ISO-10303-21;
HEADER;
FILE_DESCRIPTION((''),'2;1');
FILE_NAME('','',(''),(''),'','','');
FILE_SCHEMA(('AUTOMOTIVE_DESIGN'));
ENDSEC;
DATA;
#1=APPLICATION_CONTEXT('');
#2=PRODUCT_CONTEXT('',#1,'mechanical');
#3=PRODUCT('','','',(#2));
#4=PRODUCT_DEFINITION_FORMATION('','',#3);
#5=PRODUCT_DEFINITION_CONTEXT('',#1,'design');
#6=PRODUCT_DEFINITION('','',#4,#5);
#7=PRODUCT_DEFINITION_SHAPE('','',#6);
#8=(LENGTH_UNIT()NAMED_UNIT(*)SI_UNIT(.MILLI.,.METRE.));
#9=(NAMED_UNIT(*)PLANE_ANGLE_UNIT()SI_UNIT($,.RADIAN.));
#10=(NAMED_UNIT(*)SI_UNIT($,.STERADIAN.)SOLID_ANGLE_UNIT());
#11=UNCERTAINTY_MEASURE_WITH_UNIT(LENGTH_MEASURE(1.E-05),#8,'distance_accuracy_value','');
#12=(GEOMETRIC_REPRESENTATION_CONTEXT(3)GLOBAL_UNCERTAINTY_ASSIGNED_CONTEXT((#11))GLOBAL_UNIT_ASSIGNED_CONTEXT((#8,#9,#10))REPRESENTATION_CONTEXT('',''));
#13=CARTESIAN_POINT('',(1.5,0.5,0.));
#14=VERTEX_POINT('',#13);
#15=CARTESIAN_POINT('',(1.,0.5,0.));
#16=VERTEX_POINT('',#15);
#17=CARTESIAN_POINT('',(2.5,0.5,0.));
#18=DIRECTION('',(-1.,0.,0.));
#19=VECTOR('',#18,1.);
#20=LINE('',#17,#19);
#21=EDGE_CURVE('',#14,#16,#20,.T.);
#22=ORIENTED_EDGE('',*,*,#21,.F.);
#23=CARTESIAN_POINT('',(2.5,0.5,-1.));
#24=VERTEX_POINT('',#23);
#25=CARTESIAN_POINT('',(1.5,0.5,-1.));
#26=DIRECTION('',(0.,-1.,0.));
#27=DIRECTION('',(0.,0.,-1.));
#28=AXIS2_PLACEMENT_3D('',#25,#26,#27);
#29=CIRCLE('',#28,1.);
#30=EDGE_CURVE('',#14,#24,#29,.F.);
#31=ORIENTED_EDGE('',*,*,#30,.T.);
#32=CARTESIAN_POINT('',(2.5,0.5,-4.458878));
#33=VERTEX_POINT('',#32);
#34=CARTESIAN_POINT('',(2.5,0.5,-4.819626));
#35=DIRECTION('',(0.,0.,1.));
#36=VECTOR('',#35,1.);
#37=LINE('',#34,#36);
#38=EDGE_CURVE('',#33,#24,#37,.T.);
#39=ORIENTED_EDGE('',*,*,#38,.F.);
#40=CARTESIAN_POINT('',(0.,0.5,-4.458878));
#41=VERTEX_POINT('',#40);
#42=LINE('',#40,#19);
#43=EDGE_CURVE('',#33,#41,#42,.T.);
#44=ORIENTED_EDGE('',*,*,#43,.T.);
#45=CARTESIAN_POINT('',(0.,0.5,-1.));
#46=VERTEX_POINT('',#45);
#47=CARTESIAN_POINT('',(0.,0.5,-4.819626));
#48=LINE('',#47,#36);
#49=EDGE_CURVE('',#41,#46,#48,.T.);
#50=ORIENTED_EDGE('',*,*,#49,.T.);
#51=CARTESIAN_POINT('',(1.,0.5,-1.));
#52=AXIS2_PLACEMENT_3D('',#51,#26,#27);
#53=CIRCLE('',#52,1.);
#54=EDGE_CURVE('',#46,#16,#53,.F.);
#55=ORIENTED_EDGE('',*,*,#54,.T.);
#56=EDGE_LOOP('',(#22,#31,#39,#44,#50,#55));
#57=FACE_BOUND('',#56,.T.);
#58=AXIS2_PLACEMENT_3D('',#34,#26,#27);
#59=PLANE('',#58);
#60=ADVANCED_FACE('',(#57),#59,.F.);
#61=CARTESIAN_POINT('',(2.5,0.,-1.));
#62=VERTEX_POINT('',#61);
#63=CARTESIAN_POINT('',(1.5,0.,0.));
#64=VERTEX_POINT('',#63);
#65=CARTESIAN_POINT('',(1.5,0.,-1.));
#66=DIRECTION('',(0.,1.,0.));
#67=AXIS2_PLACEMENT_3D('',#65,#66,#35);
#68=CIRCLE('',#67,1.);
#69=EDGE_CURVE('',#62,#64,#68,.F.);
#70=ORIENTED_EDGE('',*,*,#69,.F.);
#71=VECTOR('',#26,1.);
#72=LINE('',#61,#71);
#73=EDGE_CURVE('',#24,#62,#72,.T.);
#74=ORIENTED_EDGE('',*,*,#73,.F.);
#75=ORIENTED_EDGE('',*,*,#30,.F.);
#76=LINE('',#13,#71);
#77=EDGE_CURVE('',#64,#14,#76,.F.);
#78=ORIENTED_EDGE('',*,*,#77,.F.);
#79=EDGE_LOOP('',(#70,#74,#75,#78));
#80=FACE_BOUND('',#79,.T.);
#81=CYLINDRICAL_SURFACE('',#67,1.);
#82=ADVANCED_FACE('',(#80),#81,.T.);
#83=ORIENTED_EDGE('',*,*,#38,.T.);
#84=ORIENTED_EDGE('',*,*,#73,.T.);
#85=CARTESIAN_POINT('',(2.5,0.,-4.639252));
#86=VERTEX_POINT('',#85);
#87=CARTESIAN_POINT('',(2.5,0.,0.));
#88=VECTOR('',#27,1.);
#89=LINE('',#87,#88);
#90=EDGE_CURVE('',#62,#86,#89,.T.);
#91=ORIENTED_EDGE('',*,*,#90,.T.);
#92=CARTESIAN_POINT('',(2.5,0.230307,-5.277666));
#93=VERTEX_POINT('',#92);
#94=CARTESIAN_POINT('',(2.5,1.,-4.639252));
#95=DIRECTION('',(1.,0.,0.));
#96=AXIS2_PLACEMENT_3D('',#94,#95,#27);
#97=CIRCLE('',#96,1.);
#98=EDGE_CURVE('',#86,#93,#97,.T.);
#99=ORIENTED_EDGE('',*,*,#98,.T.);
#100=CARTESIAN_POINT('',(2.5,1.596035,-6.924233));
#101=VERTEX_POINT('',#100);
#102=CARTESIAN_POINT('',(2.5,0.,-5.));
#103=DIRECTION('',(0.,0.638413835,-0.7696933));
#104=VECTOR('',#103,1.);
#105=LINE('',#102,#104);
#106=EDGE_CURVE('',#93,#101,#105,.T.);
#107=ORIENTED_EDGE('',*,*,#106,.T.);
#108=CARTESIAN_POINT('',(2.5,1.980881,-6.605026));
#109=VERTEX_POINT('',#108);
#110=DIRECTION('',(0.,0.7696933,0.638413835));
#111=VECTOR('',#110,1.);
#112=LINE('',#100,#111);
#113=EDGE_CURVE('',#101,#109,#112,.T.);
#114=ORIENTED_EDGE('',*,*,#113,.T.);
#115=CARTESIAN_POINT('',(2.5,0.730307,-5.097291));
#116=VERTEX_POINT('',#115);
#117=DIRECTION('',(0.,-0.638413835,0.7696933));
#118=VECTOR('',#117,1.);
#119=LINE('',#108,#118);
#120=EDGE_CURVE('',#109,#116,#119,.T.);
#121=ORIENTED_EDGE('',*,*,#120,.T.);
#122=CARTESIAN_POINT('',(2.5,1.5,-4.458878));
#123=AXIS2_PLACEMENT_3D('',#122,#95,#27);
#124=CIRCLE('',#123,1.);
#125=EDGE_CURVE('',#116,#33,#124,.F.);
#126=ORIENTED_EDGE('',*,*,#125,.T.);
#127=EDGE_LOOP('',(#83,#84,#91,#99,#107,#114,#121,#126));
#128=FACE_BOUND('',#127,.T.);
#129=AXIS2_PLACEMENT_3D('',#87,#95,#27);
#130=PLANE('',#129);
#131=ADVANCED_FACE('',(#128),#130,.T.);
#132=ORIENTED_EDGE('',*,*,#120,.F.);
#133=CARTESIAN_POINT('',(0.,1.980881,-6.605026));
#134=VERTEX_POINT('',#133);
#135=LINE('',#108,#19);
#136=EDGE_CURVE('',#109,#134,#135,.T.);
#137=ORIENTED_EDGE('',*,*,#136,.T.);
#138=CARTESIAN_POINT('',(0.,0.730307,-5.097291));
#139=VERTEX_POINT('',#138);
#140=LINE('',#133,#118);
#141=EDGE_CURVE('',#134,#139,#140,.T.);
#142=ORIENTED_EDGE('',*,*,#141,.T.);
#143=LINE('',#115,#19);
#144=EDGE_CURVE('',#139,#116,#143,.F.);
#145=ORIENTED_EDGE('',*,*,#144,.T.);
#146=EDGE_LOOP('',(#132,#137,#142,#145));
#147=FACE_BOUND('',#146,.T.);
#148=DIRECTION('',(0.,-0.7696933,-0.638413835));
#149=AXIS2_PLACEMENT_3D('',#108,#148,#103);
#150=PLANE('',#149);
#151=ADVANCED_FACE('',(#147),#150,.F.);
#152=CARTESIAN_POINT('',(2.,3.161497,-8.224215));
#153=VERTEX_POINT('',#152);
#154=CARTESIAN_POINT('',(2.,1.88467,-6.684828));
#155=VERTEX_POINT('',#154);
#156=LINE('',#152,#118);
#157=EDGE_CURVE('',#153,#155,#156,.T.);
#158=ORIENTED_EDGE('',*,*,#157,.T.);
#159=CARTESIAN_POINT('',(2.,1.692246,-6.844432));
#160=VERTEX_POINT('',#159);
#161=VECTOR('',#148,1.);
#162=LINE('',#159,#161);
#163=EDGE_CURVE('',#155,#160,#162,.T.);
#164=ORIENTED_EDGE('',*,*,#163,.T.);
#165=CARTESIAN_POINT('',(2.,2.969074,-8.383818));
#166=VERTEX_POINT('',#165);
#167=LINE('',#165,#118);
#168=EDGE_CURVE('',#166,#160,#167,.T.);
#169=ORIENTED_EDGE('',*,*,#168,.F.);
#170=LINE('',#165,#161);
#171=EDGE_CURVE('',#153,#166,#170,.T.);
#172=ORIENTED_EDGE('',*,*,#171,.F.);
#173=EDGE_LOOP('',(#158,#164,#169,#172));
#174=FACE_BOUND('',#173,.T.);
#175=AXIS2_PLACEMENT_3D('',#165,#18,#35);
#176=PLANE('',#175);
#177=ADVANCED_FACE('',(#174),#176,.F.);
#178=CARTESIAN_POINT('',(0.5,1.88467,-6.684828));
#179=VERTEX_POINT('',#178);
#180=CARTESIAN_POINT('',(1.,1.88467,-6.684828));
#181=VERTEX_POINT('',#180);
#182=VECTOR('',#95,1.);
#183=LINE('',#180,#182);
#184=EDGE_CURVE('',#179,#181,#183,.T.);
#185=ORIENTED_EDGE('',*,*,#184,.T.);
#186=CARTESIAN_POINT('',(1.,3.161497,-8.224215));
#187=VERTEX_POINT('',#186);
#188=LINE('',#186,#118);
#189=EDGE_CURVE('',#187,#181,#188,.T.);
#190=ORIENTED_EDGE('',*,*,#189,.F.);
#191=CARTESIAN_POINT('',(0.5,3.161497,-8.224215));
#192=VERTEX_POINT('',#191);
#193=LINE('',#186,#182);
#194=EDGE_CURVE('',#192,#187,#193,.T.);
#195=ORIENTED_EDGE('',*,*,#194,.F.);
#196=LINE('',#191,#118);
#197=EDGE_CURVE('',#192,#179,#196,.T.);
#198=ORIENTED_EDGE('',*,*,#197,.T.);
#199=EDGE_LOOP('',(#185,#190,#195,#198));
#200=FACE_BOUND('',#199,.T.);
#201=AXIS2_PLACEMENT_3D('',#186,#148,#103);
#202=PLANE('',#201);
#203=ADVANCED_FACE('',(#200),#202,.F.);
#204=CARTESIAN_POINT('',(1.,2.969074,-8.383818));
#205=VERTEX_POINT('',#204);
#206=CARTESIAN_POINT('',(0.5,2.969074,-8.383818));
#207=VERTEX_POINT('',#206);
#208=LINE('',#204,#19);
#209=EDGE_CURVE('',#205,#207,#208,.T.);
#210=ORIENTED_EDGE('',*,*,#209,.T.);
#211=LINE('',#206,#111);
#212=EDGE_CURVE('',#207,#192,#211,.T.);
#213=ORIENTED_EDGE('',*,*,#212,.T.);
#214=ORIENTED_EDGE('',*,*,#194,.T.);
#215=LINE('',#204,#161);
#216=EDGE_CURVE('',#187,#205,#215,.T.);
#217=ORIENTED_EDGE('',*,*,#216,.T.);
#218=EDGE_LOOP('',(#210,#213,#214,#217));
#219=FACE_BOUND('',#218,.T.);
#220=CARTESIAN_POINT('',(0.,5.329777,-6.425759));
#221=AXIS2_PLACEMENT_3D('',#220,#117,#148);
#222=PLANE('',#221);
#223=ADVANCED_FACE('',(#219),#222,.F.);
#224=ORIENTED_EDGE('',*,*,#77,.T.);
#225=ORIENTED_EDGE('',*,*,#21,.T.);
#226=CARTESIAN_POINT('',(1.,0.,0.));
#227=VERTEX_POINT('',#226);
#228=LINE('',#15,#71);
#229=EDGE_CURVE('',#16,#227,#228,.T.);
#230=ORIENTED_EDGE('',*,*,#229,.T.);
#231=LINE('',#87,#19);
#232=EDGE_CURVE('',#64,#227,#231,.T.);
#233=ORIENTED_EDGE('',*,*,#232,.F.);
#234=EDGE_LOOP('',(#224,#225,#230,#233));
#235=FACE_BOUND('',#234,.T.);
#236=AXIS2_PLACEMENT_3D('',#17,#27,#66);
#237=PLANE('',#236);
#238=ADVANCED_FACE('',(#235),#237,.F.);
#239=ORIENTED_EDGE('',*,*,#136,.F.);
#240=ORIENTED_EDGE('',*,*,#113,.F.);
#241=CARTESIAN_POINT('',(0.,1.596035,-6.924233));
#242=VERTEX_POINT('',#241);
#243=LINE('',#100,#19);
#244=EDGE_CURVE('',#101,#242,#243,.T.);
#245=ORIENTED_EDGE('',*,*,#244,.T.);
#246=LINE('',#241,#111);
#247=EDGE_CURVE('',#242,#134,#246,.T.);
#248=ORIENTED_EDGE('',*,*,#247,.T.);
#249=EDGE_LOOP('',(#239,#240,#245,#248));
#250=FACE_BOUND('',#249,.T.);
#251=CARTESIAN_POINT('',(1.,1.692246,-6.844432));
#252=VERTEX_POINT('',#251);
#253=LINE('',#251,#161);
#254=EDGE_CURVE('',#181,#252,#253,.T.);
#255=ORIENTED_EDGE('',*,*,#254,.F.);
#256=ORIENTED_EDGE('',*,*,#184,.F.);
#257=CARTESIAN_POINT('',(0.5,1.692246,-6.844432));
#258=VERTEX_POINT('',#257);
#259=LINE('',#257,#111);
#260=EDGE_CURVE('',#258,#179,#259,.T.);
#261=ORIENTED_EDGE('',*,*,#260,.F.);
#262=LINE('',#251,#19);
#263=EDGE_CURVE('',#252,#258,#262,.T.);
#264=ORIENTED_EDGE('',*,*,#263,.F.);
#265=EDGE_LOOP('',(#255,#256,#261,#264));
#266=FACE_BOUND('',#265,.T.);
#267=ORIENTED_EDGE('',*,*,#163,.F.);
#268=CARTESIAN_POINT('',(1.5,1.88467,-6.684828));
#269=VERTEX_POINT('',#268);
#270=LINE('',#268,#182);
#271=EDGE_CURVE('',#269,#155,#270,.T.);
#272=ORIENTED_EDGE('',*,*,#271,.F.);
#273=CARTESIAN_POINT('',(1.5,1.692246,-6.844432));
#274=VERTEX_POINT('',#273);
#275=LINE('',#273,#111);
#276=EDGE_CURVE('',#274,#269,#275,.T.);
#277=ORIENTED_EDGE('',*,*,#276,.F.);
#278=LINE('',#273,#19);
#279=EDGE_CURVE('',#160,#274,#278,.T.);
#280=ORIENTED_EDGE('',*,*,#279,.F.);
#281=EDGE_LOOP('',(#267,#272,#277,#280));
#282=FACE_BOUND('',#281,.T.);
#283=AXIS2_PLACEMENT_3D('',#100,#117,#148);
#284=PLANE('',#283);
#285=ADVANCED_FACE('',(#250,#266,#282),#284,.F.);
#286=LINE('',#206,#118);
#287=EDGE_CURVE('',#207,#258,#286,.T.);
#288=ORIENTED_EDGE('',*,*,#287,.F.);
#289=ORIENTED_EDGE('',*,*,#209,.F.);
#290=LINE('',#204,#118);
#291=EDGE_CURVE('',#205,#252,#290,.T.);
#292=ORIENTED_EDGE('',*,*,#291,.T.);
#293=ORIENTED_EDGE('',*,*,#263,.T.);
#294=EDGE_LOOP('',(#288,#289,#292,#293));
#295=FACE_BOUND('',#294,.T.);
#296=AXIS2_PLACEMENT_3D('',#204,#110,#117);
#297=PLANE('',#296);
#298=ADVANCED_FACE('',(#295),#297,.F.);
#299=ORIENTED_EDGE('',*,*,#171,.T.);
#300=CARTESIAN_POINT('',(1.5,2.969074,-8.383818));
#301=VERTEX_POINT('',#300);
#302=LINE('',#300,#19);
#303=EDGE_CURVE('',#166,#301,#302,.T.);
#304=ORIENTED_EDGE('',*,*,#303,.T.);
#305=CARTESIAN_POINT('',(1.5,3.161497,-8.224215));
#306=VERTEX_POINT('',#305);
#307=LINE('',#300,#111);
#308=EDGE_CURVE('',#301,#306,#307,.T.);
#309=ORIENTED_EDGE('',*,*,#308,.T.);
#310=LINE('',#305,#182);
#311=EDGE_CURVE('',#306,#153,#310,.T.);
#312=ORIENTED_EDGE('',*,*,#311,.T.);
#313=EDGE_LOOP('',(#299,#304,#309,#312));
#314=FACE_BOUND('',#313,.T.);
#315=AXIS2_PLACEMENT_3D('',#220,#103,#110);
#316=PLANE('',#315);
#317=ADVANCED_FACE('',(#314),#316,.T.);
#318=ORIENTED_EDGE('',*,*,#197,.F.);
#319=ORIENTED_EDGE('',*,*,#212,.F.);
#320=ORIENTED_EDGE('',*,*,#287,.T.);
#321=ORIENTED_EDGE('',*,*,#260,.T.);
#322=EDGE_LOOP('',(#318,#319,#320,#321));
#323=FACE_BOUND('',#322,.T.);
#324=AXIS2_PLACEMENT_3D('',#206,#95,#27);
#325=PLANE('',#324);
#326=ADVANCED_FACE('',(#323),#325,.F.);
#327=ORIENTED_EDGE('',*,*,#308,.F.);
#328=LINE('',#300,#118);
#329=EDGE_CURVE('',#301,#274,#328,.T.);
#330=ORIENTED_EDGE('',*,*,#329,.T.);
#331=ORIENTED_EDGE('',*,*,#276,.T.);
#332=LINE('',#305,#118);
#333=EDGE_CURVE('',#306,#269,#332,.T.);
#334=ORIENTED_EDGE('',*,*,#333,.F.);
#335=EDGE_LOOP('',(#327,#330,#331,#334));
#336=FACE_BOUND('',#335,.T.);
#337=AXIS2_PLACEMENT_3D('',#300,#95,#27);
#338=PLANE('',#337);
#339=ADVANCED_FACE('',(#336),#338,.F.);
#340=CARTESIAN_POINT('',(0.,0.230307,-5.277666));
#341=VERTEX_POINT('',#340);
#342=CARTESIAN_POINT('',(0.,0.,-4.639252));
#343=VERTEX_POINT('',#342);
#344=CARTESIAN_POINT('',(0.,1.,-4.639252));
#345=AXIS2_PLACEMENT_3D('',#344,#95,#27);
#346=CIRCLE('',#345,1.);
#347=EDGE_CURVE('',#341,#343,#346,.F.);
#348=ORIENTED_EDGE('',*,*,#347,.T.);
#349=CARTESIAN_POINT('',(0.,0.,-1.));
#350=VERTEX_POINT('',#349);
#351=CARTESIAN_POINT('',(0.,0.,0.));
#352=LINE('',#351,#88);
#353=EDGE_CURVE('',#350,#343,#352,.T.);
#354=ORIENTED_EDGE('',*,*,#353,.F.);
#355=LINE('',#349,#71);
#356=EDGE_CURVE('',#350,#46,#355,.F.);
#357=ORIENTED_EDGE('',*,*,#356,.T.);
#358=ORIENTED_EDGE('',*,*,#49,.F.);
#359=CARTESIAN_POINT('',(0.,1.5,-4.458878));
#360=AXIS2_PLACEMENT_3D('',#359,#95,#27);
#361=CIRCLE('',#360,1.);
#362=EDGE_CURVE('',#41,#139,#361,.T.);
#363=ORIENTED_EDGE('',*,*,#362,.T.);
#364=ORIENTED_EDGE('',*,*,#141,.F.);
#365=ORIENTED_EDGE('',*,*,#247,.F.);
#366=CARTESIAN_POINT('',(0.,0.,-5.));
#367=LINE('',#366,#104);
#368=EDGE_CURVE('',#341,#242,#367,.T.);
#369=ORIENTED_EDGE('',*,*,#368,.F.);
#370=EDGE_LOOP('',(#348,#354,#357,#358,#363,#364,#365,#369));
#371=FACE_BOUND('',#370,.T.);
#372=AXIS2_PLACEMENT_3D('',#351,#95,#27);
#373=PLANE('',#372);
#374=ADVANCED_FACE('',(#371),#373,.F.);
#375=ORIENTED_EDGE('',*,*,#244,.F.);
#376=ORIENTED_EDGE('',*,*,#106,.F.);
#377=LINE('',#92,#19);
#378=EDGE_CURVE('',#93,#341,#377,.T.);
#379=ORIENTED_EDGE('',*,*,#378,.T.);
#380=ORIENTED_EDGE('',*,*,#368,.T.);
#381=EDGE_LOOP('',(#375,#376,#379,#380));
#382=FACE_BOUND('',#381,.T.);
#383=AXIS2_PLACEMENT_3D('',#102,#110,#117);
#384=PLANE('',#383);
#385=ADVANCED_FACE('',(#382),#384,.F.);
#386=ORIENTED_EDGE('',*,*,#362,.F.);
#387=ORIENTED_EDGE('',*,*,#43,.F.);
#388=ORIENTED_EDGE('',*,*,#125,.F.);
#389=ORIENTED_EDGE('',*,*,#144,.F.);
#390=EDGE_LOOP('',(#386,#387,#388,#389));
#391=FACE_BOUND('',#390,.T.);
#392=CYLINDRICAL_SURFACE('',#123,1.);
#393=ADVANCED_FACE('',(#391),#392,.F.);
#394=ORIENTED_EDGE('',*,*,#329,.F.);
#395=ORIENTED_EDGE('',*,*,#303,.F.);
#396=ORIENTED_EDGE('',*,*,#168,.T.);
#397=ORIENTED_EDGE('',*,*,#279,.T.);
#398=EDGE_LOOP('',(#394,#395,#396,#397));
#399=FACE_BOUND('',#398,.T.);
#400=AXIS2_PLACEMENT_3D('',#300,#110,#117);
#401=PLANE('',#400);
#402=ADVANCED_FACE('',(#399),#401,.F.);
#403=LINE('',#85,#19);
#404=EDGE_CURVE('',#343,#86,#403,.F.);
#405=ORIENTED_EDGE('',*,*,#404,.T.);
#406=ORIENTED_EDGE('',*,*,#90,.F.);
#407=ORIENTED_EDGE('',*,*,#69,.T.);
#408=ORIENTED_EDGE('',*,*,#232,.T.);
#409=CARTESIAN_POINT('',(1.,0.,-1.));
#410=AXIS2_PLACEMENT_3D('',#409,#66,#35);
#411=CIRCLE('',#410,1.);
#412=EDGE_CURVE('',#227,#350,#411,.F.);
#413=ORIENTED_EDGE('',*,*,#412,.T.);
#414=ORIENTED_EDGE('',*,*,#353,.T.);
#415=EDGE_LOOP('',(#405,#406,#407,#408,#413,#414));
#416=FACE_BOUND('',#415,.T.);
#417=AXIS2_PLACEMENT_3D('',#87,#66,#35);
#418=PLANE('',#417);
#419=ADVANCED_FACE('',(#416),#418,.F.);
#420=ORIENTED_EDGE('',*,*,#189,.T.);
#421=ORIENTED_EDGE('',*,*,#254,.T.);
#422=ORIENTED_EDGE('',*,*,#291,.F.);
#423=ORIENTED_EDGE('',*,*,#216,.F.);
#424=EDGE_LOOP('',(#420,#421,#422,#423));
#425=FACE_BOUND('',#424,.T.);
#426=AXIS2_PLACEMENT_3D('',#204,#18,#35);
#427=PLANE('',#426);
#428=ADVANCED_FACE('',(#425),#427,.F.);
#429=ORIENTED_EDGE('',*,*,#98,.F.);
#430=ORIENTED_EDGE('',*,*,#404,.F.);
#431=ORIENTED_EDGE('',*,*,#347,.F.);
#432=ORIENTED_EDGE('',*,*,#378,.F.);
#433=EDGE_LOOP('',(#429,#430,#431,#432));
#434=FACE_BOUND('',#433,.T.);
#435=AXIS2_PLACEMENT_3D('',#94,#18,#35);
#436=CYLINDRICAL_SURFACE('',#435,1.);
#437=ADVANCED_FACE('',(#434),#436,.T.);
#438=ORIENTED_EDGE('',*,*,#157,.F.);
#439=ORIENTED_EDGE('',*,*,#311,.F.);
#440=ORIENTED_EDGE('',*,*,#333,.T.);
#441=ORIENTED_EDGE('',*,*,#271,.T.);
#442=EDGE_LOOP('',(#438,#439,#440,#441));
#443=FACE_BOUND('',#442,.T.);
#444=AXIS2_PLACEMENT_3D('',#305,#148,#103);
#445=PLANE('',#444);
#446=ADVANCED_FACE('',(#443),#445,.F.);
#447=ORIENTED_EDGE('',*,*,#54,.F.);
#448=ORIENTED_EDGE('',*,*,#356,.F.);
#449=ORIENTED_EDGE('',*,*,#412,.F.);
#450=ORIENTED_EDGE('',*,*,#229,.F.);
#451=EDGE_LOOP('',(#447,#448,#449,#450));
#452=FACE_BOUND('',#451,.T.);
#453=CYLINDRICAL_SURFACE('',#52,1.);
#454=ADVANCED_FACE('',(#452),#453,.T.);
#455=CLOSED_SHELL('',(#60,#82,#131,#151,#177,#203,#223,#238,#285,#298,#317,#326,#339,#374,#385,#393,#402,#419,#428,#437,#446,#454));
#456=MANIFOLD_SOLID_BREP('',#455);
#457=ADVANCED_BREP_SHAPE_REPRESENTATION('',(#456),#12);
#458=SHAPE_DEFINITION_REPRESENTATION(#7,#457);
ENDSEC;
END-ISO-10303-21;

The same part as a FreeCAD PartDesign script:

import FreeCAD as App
import Part
import Sketcher
Q = App.Units.Quantity


def edges_at(feature, points):
    """Names of the edges that pass closest to the given points."""
    edges = feature.Shape.Edges
    near = lambda p: min(range(len(edges)), key=lambda i: edges[i].distToShape(Part.Vertex(*p))[0])
    return sorted({f"Edge{near(p) + 1}" for p in points})

doc = App.newDocument("Part")
params = doc.addObject("Spreadsheet::Sheet", "Params")
for row, (alias, value) in enumerate([
    ("sketch1_height", "5 mm"),
    ("sketch1_width", "0.5 mm"),
    ("sketch1_length", "2.5 mm"),
    ("sketch1_length2", "0.5 mm"),
    ("pad1_length", "2.5 mm"),
    ("fillet_radius", "1 mm"),
    ("fillet2_radius", "1 mm"),
    ("sketch2_width", "0.5 mm"),
    ("sketch2_height", "0.25 mm"),
    ("pad2_length", "2 mm"),
], start=1):
    params.set(f"A{row}", alias)
    params.set(f"B{row}", "=" + value)
    params.setAlias(f"B{row}", alias)

body = doc.addObject("PartDesign::Body", "Body")

sketch1 = doc.addObject("Sketcher::SketchObject", "Sketch")
body.addObject(sketch1)
sketch1.AttachmentSupport = (doc.YZ_Plane, [""])
sketch1.MapMode = "FlatFace"
sketch1.addGeometry([
    Part.LineSegment(App.Vector(0, 0, 0), App.Vector(0, -5, 0)),
    Part.LineSegment(App.Vector(0, -5, 0), App.Vector(1.6, -6.9, 0)),
    Part.LineSegment(App.Vector(1.6, -6.9, 0), App.Vector(2, -6.6, 0)),
    Part.LineSegment(App.Vector(2, -6.6, 0), App.Vector(0.5, -4.8, 0)),
    Part.LineSegment(App.Vector(0.5, -4.8, 0), App.Vector(0.5, 0, 0)),
    Part.LineSegment(App.Vector(0.5, 0, 0), App.Vector(0, 0, 0)),
], False)
sketch1.addConstraint([
    Sketcher.Constraint("Coincident", 0, 2, 1, 1),
    Sketcher.Constraint("Coincident", 1, 2, 2, 1),
    Sketcher.Constraint("Coincident", 2, 2, 3, 1),
    Sketcher.Constraint("Coincident", 3, 2, 4, 1),
    Sketcher.Constraint("Coincident", 4, 2, 5, 1),
    Sketcher.Constraint("Coincident", 5, 2, 0, 1),
    Sketcher.Constraint("Vertical", 0),
    Sketcher.Constraint("Vertical", 4),
    Sketcher.Constraint("Horizontal", 5),
    Sketcher.Constraint("Coincident", 5, 2, -1, 1),
    Sketcher.Constraint("Perpendicular", 1, 2),
    Sketcher.Constraint("Perpendicular", 2, 3),
    Sketcher.Constraint("DistanceY", 0, 2, 0, 1, Q("5 mm")),
    Sketcher.Constraint("DistanceX", 5, 2, 5, 1, Q("0.5 mm")),
    Sketcher.Constraint("Distance", 1, Q("2.5 mm")),
    Sketcher.Constraint("Distance", 2, Q("0.5 mm")),
    Sketcher.Constraint("DistanceY", 2, 2, 3, 2, Q("1.7854 mm")),
])
sketch1.setExpression("Constraints[12]", "Params.sketch1_height")
sketch1.setExpression("Constraints[13]", "Params.sketch1_width")
sketch1.setExpression("Constraints[14]", "Params.sketch1_length")
sketch1.setExpression("Constraints[15]", "Params.sketch1_length2")
pad1 = doc.addObject("PartDesign::Pad", "Pad")
body.addObject(pad1)
pad1.Profile = sketch1
pad1.setExpression("Length", "Params.pad1_length")
doc.recompute()

fillet = doc.addObject("PartDesign::Fillet", "Fillet")
body.addObject(fillet)
fillet.Base = (pad1, edges_at(pad1, [(2.5, 0.25, 0), (0, 0.25, 0)]))
fillet.setExpression("Radius", "Params.fillet_radius")
doc.recompute()

fillet2 = doc.addObject("PartDesign::Fillet", "Fillet001")
body.addObject(fillet2)
fillet2.Base = (fillet, edges_at(fillet, [(1.25, 0.5, -4.82), (1.25, 0, -5)]))
fillet2.setExpression("Radius", "Params.fillet2_radius")

sketch2 = doc.addObject("Sketcher::SketchObject", "Sketch001")
body.addObject(sketch2)
sketch2.Placement = App.Placement(App.Vector(0, 4.052949, -4.886372), App.Rotation(App.Vector(-1, 0, 0), App.Vector(0, 0.7696933, 0.638413835), App.Vector(0, 0.638413835, -0.7696933), "ZXY"))
sketch2.addGeometry([
    Part.LineSegment(App.Vector(-2, -2.82, 0), App.Vector(-2, -3.07, 0)),
    Part.LineSegment(App.Vector(-2, -3.07, 0), App.Vector(-1.5, -3.07, 0)),
    Part.LineSegment(App.Vector(-1.5, -3.07, 0), App.Vector(-1.5, -2.82, 0)),
    Part.LineSegment(App.Vector(-1.5, -2.82, 0), App.Vector(-2, -2.82, 0)),
    Part.LineSegment(App.Vector(-1, -2.82, 0), App.Vector(-1, -3.07, 0)),
    Part.LineSegment(App.Vector(-1, -3.07, 0), App.Vector(-0.5, -3.07, 0)),
    Part.LineSegment(App.Vector(-0.5, -3.07, 0), App.Vector(-0.5, -2.82, 0)),
    Part.LineSegment(App.Vector(-0.5, -2.82, 0), App.Vector(-1, -2.82, 0)),
], False)
sketch2.addConstraint([
    Sketcher.Constraint("Coincident", 0, 2, 1, 1),
    Sketcher.Constraint("Coincident", 1, 2, 2, 1),
    Sketcher.Constraint("Coincident", 2, 2, 3, 1),
    Sketcher.Constraint("Coincident", 3, 2, 0, 1),
    Sketcher.Constraint("Coincident", 4, 2, 5, 1),
    Sketcher.Constraint("Coincident", 5, 2, 6, 1),
    Sketcher.Constraint("Coincident", 6, 2, 7, 1),
    Sketcher.Constraint("Coincident", 7, 2, 4, 1),
    Sketcher.Constraint("Vertical", 0),
    Sketcher.Constraint("Horizontal", 1),
    Sketcher.Constraint("Vertical", 2),
    Sketcher.Constraint("Horizontal", 3),
    Sketcher.Constraint("Vertical", 4),
    Sketcher.Constraint("Horizontal", 5),
    Sketcher.Constraint("Vertical", 6),
    Sketcher.Constraint("Horizontal", 7),
    Sketcher.Constraint("Horizontal", 1, 2, 4, 2),
    Sketcher.Constraint("Horizontal", 3, 2, 6, 2),
    Sketcher.Constraint("Equal", 3, 5),
    Sketcher.Constraint("DistanceX", 1, 1, 1, 2, Q("0.5 mm")),
    Sketcher.Constraint("DistanceX", 0, 2, -1, 1, Q("2 mm")),
    Sketcher.Constraint("DistanceX", 4, 2, -1, 1, Q("1 mm")),
    Sketcher.Constraint("DistanceY", 0, 2, 0, 1, Q("0.25 mm")),
    Sketcher.Constraint("DistanceY", 0, 2, -1, 1, Q("3.067069 mm")),
])
sketch2.setExpression("Constraints[19]", "Params.sketch2_width")
sketch2.setExpression("Constraints[22]", "Params.sketch2_height")
pad2 = doc.addObject("PartDesign::Pad", "Pad001")
body.addObject(pad2)
pad2.Profile = sketch2
pad2.setExpression("Length", "Params.pad2_length")

doc.recompute()
